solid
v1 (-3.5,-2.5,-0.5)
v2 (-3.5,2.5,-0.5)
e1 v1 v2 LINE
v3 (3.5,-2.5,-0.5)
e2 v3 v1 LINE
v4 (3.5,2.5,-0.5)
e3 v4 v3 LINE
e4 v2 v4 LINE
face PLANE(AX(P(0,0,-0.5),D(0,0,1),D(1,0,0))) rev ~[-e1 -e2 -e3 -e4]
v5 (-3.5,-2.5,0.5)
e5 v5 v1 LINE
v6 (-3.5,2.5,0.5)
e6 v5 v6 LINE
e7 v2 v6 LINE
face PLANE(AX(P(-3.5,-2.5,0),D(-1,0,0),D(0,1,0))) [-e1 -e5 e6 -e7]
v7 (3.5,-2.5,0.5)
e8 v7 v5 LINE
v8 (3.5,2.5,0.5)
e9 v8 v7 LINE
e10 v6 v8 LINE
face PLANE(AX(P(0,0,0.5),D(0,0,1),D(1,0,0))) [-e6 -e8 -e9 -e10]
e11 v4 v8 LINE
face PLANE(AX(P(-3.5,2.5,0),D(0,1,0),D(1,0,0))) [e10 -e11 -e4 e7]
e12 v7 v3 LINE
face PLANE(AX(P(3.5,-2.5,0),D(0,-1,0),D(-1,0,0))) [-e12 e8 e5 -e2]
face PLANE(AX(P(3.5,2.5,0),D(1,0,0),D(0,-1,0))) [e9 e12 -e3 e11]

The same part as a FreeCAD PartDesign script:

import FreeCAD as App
import Part
import Sketcher
Q = App.Units.Quantity


def add_polygon(sketch, points):
    """Adds a closed chain of lines whose ends are joined by coincident constraints."""
    first, n = sketch.GeometryCount, len(points)
    for a, b in zip(points, points[1:] + points[:1]):
        sketch.addGeometry(Part.LineSegment(App.Vector(*a, 0), App.Vector(*b, 0)), False)
    for i in range(n):
        sketch.addConstraint(Sketcher.Constraint("Coincident", first + i, 2, first + (i + 1) % n, 1))

doc = App.newDocument("Part")
body = doc.addObject("PartDesign::Body", "Body")

# Sketch on XY plane
sketch1 = doc.addObject("Sketcher::SketchObject", "Sketch")
body.addObject(sketch1)
sketch1.AttachmentSupport = (doc.XY_Plane, [""])
sketch1.MapMode = "FlatFace"
add_polygon(sketch1, [(4, -2), (4, 2), (-4, 2), (-4, -2)])  # lines 0-3
sketch1.addConstraint([
    Sketcher.Constraint("Vertical", 0),
    Sketcher.Constraint("Horizontal", 1),
    Sketcher.Constraint("Vertical", 2),
    Sketcher.Constraint("Horizontal", 3),
    Sketcher.Constraint("Symmetric", 0, 2, 2, 2, -1, 1),
    Sketcher.Constraint("DistanceX", 1, 2, 1, 1, Q("7 mm")),
    Sketcher.Constraint("DistanceY", 0, 1, 0, 2, Q("5 mm")),
])
pad1 = doc.addObject("PartDesign::Pad", "Pad")
body.addObject(pad1)
pad1.Profile = sketch1
pad1.Length = 1
pad1.Midplane = True

doc.recompute()
